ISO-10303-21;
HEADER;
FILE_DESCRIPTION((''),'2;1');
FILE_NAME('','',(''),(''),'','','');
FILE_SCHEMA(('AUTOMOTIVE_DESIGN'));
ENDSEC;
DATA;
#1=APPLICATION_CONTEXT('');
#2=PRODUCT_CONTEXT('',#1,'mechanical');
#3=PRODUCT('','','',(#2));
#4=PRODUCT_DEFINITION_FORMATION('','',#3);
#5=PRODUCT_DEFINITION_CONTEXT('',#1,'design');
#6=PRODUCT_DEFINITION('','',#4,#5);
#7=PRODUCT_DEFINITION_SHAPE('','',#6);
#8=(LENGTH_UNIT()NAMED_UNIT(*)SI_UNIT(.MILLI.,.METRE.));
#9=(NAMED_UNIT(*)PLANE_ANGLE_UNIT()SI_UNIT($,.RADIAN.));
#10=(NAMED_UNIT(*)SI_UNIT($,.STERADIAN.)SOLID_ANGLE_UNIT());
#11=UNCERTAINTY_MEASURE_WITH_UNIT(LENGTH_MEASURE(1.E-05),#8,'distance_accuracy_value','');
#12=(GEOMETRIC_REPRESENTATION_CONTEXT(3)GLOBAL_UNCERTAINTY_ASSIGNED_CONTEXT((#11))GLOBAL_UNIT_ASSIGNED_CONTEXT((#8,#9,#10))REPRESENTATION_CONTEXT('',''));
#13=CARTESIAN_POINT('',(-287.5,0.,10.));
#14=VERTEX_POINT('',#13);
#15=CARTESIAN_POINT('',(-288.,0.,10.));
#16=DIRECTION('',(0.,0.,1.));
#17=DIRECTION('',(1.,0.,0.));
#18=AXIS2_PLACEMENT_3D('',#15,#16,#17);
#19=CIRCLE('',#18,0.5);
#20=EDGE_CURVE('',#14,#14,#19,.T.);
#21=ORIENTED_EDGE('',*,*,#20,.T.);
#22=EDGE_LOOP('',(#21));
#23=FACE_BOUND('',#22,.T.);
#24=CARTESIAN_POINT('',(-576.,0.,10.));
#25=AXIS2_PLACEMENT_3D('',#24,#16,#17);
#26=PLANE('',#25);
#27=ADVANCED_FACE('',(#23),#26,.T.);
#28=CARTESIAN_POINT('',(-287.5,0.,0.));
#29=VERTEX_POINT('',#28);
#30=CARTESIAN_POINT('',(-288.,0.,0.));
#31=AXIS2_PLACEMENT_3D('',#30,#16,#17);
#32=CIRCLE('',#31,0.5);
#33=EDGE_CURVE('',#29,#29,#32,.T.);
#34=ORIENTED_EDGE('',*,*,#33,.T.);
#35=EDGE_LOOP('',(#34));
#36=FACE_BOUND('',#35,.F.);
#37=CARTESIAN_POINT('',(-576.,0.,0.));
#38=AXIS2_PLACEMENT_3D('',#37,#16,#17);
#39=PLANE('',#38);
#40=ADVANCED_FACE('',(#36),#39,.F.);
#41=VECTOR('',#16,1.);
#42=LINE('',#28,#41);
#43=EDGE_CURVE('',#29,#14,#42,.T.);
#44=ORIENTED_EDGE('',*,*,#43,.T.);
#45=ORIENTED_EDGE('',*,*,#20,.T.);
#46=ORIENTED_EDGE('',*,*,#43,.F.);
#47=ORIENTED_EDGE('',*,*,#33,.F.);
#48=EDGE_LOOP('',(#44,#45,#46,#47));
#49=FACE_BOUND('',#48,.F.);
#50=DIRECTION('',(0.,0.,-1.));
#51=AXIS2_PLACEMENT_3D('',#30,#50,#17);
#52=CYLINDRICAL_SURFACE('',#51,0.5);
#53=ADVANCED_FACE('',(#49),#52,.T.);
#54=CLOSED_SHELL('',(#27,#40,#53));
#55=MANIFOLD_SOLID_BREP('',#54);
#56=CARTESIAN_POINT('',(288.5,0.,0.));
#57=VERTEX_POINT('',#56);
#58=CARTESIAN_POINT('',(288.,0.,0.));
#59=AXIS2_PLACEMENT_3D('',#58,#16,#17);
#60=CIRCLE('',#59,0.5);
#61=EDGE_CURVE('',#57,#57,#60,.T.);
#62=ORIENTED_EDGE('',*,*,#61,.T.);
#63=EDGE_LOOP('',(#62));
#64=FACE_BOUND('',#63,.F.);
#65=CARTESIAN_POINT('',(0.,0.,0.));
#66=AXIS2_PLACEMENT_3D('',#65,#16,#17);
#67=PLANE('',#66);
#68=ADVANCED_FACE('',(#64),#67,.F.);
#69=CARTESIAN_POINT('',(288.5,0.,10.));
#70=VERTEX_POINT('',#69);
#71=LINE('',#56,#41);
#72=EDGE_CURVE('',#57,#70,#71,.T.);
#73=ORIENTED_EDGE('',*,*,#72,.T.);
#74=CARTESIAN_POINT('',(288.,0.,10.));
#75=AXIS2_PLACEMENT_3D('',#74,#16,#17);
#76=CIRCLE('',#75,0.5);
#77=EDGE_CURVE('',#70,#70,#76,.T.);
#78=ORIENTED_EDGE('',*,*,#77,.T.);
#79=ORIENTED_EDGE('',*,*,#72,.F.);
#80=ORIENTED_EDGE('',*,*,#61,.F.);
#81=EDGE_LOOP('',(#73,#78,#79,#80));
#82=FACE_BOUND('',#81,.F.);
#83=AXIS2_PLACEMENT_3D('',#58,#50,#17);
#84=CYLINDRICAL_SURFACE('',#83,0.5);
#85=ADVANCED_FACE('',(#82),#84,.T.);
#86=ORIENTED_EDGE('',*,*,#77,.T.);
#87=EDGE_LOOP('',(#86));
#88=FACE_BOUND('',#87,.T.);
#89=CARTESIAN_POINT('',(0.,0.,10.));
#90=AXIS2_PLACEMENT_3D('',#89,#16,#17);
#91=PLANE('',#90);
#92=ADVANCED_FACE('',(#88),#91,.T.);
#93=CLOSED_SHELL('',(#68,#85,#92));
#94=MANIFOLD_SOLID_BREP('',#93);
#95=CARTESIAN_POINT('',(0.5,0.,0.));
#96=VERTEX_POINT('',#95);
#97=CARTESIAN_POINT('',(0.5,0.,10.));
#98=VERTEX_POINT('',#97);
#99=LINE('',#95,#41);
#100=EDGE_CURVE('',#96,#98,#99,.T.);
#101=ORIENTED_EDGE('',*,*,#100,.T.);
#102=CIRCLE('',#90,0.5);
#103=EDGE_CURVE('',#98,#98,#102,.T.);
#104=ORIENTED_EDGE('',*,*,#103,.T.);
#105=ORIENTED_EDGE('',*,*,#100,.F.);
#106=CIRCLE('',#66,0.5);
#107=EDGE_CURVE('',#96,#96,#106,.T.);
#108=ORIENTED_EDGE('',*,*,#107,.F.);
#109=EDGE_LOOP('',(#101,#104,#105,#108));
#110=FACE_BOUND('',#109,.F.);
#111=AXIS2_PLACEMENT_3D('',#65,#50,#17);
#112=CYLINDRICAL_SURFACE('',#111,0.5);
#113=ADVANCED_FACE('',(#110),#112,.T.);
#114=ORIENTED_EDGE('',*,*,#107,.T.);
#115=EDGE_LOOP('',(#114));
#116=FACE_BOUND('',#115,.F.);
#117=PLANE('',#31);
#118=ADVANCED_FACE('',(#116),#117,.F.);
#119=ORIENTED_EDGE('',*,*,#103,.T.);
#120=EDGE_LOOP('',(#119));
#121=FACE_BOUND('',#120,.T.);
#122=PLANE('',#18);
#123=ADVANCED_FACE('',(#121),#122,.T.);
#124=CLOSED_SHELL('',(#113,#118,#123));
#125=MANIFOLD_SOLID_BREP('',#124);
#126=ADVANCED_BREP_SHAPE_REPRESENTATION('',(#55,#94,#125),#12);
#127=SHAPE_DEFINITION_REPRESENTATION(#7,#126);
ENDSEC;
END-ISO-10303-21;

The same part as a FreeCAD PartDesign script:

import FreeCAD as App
import Part
import Sketcher
from FreeCAD import Vector
Q = App.Units.Quantity

doc = App.newDocument("Part")
body = doc.addObject("PartDesign::Body", "Body")
body.AllowCompound = True

sketch1 = doc.addObject("Sketcher::SketchObject", "Sketch")
body.addObject(sketch1)
sketch1.AttachmentSupport = (doc.XY_Plane, [""])
sketch1.MapMode = "FlatFace"
sketch1.addGeometry(Part.Circle(Vector(288, 0, 0), Vector(0, 0, 1), 0.5), False)
sketch1.addConstraint([
    Sketcher.Constraint("PointOnObject", 0, 3, -1),
    Sketcher.Constraint("Diameter", 0, Q("1 mm")),
    Sketcher.Constraint("DistanceX", -1, 1, 0, 3, Q("288 mm")),
])
pad1 = doc.addObject("PartDesign::Pad", "Pad")
body.addObject(pad1)
pad1.Profile = sketch1
pad1.Length = 10
doc.recompute()

linearpattern = doc.addObject("PartDesign::LinearPattern", "LinearPattern")
body.addObject(linearpattern)
linearpattern.Originals = [pad1]
linearpattern.Direction = (doc.X_Axis, [""])
linearpattern.Mode = "offset"
linearpattern.Offset = 288
linearpattern.Occurrences = 3
linearpattern.Reversed = True
body.Tip = linearpattern

doc.recompute()
